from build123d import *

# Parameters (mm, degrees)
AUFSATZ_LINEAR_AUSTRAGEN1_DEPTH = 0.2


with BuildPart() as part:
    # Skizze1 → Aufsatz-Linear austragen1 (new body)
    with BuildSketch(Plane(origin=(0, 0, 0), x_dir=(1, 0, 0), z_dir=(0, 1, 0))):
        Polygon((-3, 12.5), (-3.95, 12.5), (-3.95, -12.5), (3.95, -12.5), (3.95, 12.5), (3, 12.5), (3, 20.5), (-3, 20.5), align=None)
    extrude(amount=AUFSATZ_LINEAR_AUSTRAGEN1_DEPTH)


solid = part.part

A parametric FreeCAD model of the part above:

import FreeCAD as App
import Part
import Sketcher

V = App.Vector
Q = App.Units.Quantity


def add_polygon(sketch, points):
    """Adds a closed chain of lines whose ends are joined by coincident constraints."""
    first, n = sketch.GeometryCount, len(points)
    for a, b in zip(points, points[1:] + points[:1]):
        sketch.addGeometry(Part.LineSegment(App.Vector(*a, 0), App.Vector(*b, 0)), False)
    for i in range(n):
        sketch.addConstraint(Sketcher.Constraint("Coincident", first + i, 2, first + (i + 1) % n, 1))

doc = App.newDocument("Part")
body = doc.addObject("PartDesign::Body", "Body")

sketch1 = body.newObject("Sketcher::SketchObject", "Sketch")
sketch1.AttachmentSupport = (doc.getObject("XZ_Plane"), [""])
sketch1.MapMode = "FlatFace"
add_polygon(sketch1, [(-3, -12.5), (-4, -12.5), (-4, 12.5), (4, 12.5), (4, -12.5), (3, -12.5), (3, -20.5), (-3, -20.5)])
sketch1.addConstraint([
    Sketcher.Constraint("Horizontal", 0),
    Sketcher.Constraint("Vertical", 1),
    Sketcher.Constraint("Horizontal", 2),
    Sketcher.Constraint("Vertical", 3),
    Sketcher.Constraint("Horizontal", 4),
    Sketcher.Constraint("Vertical", 5),
    Sketcher.Constraint("Horizontal", 6),
    Sketcher.Constraint("Vertical", 7),
    Sketcher.Constraint("Symmetric", 0, 2, 2, 2, -1, 1),
    Sketcher.Constraint("Symmetric", 4, 2, 7, 2, -2),
    Sketcher.Constraint("DistanceX", 6, 2, 6, 1, Q("6 mm")),
    Sketcher.Constraint("DistanceY", 1, 1, 1, 2, Q("25 mm")),
    Sketcher.Constraint("DistanceY", 5, 2, 5, 1, Q("8 mm")),
    Sketcher.Constraint("DistanceX", 2, 1, 2, 2, Q("7.9 mm")),
])
pad1 = body.newObject("PartDesign::Pad", "Pad")
pad1.Profile = sketch1
pad1.Length = 0.2
pad1.Reversed = True

doc.recompute()
